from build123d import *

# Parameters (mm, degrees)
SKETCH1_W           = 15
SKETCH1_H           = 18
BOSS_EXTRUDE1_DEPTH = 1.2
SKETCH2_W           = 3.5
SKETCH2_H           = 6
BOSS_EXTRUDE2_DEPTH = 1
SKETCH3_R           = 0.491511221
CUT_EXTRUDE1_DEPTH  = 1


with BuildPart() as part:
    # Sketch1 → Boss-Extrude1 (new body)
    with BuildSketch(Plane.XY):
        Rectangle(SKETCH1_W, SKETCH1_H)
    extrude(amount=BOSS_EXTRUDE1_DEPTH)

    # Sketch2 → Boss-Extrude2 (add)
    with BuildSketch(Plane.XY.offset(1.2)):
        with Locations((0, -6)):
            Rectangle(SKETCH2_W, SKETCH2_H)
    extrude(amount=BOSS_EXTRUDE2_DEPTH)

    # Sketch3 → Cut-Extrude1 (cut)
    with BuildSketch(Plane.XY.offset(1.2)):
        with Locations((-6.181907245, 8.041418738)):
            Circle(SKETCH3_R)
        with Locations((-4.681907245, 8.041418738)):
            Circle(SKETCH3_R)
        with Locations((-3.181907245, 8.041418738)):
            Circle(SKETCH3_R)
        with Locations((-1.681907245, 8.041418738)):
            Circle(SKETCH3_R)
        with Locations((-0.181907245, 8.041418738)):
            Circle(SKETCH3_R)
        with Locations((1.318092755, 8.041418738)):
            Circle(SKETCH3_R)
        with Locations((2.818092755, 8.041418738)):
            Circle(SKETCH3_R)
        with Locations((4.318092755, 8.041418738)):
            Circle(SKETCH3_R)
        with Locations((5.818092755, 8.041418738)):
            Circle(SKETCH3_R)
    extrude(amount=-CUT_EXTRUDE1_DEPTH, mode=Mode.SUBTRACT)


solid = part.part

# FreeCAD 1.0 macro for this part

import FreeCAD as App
import Part
import Sketcher
from FreeCAD import Vector


def add_polygon(sketch, points):
    """Adds a closed chain of lines whose ends are joined by coincident constraints."""
    first, n = sketch.GeometryCount, len(points)
    for a, b in zip(points, points[1:] + points[:1]):
        sketch.addGeometry(Part.LineSegment(App.Vector(*a, 0), App.Vector(*b, 0)), False)
    for i in range(n):
        sketch.addConstraint(Sketcher.Constraint("Coincident", first + i, 2, first + (i + 1) % n, 1))

doc = App.newDocument("Part")
params = doc.addObject("Spreadsheet::Sheet", "Params")
for row, (alias, value) in enumerate([
    ("sketch1_width", "15 mm"),
    ("sketch1_height", "18 mm"),
    ("pad1_length", "1.2 mm"),
    ("sketch2_height", "6 mm"),
    ("sketch2_width", "3.5 mm"),
    ("pad2_length", "1 mm"),
    ("pocket1_length", "1 mm"),
], start=1):
    params.set(f"A{row}", alias)
    params.set(f"B{row}", "=" + value)
    params.setAlias(f"B{row}", alias)

body = doc.addObject("PartDesign::Body", "Body")

sketch1 = body.newObject("Sketcher::SketchObject", "Sketch")
sketch1.AttachmentSupport = (doc.getObject("XY_Plane"), [""])
sketch1.MapMode = "FlatFace"
add_polygon(sketch1, [(-8, 9), (-8, -9), (8, -9), (8, 9)])
sketch1.addConstraint([
    Sketcher.Constraint("Vertical", 0),
    Sketcher.Constraint("Horizontal", 1),
    Sketcher.Constraint("Vertical", 2),
    Sketcher.Constraint("Horizontal", 3),
    Sketcher.Constraint("Symmetric", 0, 2, 2, 2, -1, 1),
    Sketcher.Constraint("DistanceX", 1, 1, 1, 2, 15.0),
    Sketcher.Constraint("DistanceY", 0, 2, 0, 1, 18.0),
])
sketch1.setExpression("Constraints[9]", "Params.sketch1_width")
sketch1.setExpression("Constraints[10]", "Params.sketch1_height")
pad1 = body.newObject("PartDesign::Pad", "Pad")
pad1.Profile = sketch1
pad1.setExpression("Length", "Params.pad1_length")

sketch2 = body.newObject("Sketcher::SketchObject", "Sketch001")
sketch2.AttachmentSupport = (doc.getObject("XY_Plane"), [""])
sketch2.MapMode = "FlatFace"
sketch2.AttachmentOffset = App.Placement(Vector(0, 0, 1.2), App.Rotation())
add_polygon(sketch2, [(-1.8, -3), (-1.8, -9), (1.8, -9), (1.8, -3)])
sketch2.addConstraint([
    Sketcher.Constraint("Vertical", 0),
    Sketcher.Constraint("Horizontal", 1),
    Sketcher.Constraint("Vertical", 2),
    Sketcher.Constraint("Horizontal", 3),
    Sketcher.Constraint("DistanceY", 0, 2, 0, 1, 6.0),
    Sketcher.Constraint("DistanceX", 1, 1, 1, 2, 3.5),
    Sketcher.Constraint("DistanceY", 0, 2, -1, 1, 9.0),
    Sketcher.Constraint("DistanceX", 0, 2, -1, 1, 1.75),
])
sketch2.setExpression("Constraints[8]", "Params.sketch2_height")
sketch2.setExpression("Constraints[9]", "Params.sketch2_width")
pad2 = body.newObject("PartDesign::Pad", "Pad001")
pad2.Profile = sketch2
pad2.setExpression("Length", "Params.pad2_length")

sketch3 = body.newObject("Sketcher::SketchObject", "Sketch002")
sketch3.AttachmentSupport = (doc.getObject("XY_Plane"), [""])
sketch3.MapMode = "FlatFace"
sketch3.AttachmentOffset = App.Placement(Vector(0, 0, 1.2), App.Rotation())
sketch3.addGeometry([
    Part.Circle(Vector(-6.18, 8.04, 0), Vector(0, 0, 1), 0.49),
    Part.Circle(Vector(-4.68, 8.04, 0), Vector(0, 0, 1), 0.49),
    Part.Circle(Vector(-3.18, 8.04, 0), Vector(0, 0, 1), 0.49),
    Part.Circle(Vector(-1.68, 8.04, 0), Vector(0, 0, 1), 0.49),
    Part.Circle(Vector(-0.18, 8.04, 0), Vector(0, 0, 1), 0.49),
    Part.Circle(Vector(1.32, 8.04, 0), Vector(0, 0, 1), 0.49),
    Part.Circle(Vector(2.82, 8.04, 0), Vector(0, 0, 1), 0.49),
    Part.Circle(Vector(4.32, 8.04, 0), Vector(0, 0, 1), 0.49),
    Part.Circle(Vector(5.82, 8.04, 0), Vector(0, 0, 1), 0.49),
], False)
sketch3.addConstraint([
    Sketcher.Constraint("Equal", 0, 1),
    Sketcher.Constraint("Equal", 1, 2),
    Sketcher.Constraint("Equal", 2, 3),
    Sketcher.Constraint("Equal", 3, 4),
    Sketcher.Constraint("Equal", 4, 5),
    Sketcher.Constraint("Equal", 5, 6),
    Sketcher.Constraint("Equal", 6, 7),
    Sketcher.Constraint("Equal", 7, 8),
    Sketcher.Constraint("Horizontal", 0, 3, 1, 3),
    Sketcher.Constraint("Horizontal", 1, 3, 2, 3),
    Sketcher.Constraint("Horizontal", 2, 3, 3, 3),
    Sketcher.Constraint("Horizontal", 3, 3, 4, 3),
    Sketcher.Constraint("Horizontal", 4, 3, 5, 3),
    Sketcher.Constraint("Horizontal", 5, 3, 6, 3),
    Sketcher.Constraint("Horizontal", 6, 3, 7, 3),
    Sketcher.Constraint("Horizontal", 7, 3, 8, 3),
    Sketcher.Constraint("DistanceX", 0, 3, 2, 3, 3.0),
    Sketcher.Constraint("DistanceX", 1, 3, 3, 3, 3.0),
    Sketcher.Constraint("DistanceX", 2, 3, 4, 3, 3.0),
    Sketcher.Constraint("DistanceX", 3, 3, 5, 3, 3.0),
    Sketcher.Constraint("DistanceX", 4, 3, 6, 3, 3.0),
    Sketcher.Constraint("DistanceX", 5, 3, 7, 3, 3.0),
    Sketcher.Constraint("DistanceX", 6, 3, 8, 3, 3.0),
    Sketcher.Constraint("DistanceX", 0, 3, 1, 3, 1.5),
    Sketcher.Constraint("Diameter", 0, 0.983022),
    Sketcher.Constraint("DistanceY", -1, 1, 0, 3, 8.041419),
    Sketcher.Constraint("DistanceX", 0, 3, -1, 1, 6.181907),
])
pocket1 = body.newObject("PartDesign::Pocket", "Pocket")
pocket1.Profile = sketch3
pocket1.setExpression("Length", "Params.pocket1_length")

doc.recompute()
